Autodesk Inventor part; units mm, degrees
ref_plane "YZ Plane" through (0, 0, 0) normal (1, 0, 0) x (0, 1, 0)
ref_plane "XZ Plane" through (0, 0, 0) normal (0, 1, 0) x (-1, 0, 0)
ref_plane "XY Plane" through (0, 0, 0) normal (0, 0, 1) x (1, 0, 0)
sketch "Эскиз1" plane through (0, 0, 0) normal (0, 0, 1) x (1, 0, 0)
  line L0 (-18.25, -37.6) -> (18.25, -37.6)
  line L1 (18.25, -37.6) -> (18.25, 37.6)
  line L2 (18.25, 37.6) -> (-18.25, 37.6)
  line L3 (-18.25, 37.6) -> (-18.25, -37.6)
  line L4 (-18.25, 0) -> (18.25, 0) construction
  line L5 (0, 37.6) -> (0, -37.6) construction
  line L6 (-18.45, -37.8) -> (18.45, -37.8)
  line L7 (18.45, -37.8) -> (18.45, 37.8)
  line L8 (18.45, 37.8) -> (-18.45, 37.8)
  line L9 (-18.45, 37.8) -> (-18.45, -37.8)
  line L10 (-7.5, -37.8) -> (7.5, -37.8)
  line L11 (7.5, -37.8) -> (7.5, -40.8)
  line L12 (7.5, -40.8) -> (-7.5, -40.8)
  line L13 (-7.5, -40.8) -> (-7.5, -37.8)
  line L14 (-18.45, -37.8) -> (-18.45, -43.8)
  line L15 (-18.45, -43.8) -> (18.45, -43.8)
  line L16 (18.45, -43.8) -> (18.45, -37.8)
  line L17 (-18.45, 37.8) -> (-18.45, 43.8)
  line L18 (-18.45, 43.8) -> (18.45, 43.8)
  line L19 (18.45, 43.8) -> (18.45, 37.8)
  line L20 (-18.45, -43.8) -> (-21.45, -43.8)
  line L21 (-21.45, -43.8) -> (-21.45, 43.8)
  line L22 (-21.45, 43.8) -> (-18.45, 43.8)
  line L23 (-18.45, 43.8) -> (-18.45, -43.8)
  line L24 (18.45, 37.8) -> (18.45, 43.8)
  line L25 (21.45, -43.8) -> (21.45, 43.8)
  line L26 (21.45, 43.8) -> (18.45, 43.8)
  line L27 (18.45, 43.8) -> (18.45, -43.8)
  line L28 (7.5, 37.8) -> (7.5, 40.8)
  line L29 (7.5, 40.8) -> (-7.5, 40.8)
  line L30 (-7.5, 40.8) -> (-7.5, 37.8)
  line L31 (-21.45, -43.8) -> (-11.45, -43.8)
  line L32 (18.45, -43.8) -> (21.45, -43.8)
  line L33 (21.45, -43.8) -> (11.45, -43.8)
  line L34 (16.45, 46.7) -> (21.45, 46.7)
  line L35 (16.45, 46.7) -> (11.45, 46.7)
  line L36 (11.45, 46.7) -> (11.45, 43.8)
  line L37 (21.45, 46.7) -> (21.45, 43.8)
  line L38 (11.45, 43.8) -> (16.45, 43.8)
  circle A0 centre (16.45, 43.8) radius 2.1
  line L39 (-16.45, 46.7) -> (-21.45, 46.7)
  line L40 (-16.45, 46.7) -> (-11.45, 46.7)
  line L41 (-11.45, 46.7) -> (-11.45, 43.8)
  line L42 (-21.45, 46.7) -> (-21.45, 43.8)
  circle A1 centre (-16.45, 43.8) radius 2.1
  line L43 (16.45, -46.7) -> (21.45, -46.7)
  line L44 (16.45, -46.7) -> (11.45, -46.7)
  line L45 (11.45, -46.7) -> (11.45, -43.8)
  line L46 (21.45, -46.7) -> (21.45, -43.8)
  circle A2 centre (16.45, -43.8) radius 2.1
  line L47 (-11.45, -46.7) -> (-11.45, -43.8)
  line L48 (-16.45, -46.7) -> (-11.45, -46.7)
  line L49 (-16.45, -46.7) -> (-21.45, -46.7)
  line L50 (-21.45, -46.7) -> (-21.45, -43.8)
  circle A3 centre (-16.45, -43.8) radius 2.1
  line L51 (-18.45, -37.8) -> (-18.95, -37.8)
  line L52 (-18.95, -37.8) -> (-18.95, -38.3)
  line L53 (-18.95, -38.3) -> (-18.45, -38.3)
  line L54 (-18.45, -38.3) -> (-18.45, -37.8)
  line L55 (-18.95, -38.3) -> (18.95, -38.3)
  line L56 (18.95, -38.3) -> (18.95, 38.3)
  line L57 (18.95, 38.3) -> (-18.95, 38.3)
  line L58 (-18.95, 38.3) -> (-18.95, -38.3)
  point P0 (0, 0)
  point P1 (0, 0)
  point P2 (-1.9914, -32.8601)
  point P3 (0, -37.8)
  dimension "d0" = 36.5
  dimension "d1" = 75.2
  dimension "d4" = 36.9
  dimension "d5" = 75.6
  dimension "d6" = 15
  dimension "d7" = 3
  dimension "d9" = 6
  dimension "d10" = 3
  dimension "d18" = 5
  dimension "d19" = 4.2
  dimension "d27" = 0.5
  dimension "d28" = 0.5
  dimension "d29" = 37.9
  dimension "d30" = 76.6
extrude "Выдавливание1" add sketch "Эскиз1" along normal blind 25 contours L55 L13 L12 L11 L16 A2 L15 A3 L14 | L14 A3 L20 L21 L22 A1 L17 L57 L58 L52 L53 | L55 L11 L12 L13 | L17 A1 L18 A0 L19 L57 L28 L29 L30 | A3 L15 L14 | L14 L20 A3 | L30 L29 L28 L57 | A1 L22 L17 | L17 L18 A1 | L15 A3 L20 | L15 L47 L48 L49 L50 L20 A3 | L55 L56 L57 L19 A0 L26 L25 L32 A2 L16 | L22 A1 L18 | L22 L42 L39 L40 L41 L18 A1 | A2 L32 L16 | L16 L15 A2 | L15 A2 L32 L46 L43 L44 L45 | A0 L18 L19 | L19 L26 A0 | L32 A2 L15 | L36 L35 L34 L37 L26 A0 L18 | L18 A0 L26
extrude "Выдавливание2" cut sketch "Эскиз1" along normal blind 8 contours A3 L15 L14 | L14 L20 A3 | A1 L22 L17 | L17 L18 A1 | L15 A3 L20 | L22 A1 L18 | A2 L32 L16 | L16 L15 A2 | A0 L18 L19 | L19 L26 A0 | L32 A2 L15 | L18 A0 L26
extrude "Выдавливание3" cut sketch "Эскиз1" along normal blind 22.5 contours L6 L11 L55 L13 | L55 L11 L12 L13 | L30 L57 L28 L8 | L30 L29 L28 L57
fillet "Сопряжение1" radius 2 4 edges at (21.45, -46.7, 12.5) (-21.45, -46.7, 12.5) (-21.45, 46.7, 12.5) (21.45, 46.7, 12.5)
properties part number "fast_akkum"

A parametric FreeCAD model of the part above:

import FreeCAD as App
import Part
import Sketcher
Q = App.Units.Quantity


def edges_at(feature, points):
    """Names of the edges that pass closest to the given points."""
    edges = feature.Shape.Edges
    near = lambda p: min(range(len(edges)), key=lambda i: edges[i].distToShape(Part.Vertex(*p))[0])
    return sorted({f"Edge{near(p) + 1}" for p in points})


def add_polygon(sketch, points):
    """Adds a closed chain of lines whose ends are joined by coincident constraints."""
    first, n = sketch.GeometryCount, len(points)
    for a, b in zip(points, points[1:] + points[:1]):
        sketch.addGeometry(Part.LineSegment(App.Vector(*a, 0), App.Vector(*b, 0)), False)
    for i in range(n):
        sketch.addConstraint(Sketcher.Constraint("Coincident", first + i, 2, first + (i + 1) % n, 1))

doc = App.newDocument("Part")
body = doc.addObject("PartDesign::Body", "Body")

# Sketch on XY plane
sketch1 = body.newObject("Sketcher::SketchObject", "Sketch")
sketch1.AttachmentSupport = (doc.getObject("XY_Plane"), [""])
sketch1.MapMode = "FlatFace"
add_polygon(sketch1, [(-11.4, -43.8), (11.4, -43.8), (11.4, -46.7), (21.4, -46.7), (21.4, 46.7), (11.4, 46.7), (11.4, 43.8), (-11.4, 43.8), (-11.4, 46.7), (-21.4, 46.7), (-21.4, -46.7), (-11.4, -46.7)])  # lines 0-11
add_polygon(sketch1, [(-18.9, -38.3), (-18.9, 38.3), (18.9, 38.3), (18.9, -38.3)])  # lines 12-15
sketch1.addConstraint(Sketcher.Constraint("Horizontal", 0))
sketch1.addConstraint(Sketcher.Constraint("Vertical", 1))
sketch1.addConstraint(Sketcher.Constraint("Horizontal", 2))
sketch1.addConstraint(Sketcher.Constraint("Vertical", 3))
sketch1.addConstraint(Sketcher.Constraint("Horizontal", 4))
sketch1.addConstraint(Sketcher.Constraint("Vertical", 5))
sketch1.addConstraint(Sketcher.Constraint("Horizontal", 6))
sketch1.addConstraint(Sketcher.Constraint("Vertical", 7))
sketch1.addConstraint(Sketcher.Constraint("Horizontal", 8))
sketch1.addConstraint(Sketcher.Constraint("Vertical", 9))
sketch1.addConstraint(Sketcher.Constraint("Horizontal", 10))
sketch1.addConstraint(Sketcher.Constraint("Vertical", 11))
sketch1.addConstraint(Sketcher.Constraint("Vertical", 12))
sketch1.addConstraint(Sketcher.Constraint("Horizontal", 13))
sketch1.addConstraint(Sketcher.Constraint("Vertical", 14))
sketch1.addConstraint(Sketcher.Constraint("Horizontal", 15))
sketch1.addConstraint(Sketcher.Constraint("Symmetric", 0, 2, 6, 2, -1, 1))
sketch1.addConstraint(Sketcher.Constraint("Symmetric", 2, 2, 8, 2, -1, 1))
sketch1.addConstraint(Sketcher.Constraint("Symmetric", 4, 2, 10, 2, -1, 1))
sketch1.addConstraint(Sketcher.Constraint("Symmetric", 12, 2, 14, 2, -1, 1))
sketch1.addConstraint(Sketcher.Constraint("Symmetric", 4, 2, 7, 2, -2))
sketch1.addConstraint(Sketcher.Constraint("DistanceX", 13, 1, 13, 2, Q("37.9 mm")))
sketch1.addConstraint(Sketcher.Constraint("DistanceY", 12, 1, 12, 2, Q("76.6 mm")))
sketch1.addConstraint(Sketcher.Constraint("DistanceX", 2, 1, 2, 2, Q("10 mm")))
sketch1.addConstraint(Sketcher.Constraint("DistanceX", 0, 1, 0, 2, Q("22.9 mm")))
sketch1.addConstraint(Sketcher.Constraint("DistanceY", 1, 2, 1, 1, Q("2.9 mm")))
sketch1.addConstraint(Sketcher.Constraint("DistanceY", 3, 1, 3, 2, Q("93.4 mm")))
pad1 = body.newObject("PartDesign::Pad", "Pad")
pad1.Profile = sketch1
pad1.Length = 25

# Sketch on XY plane
sketch2 = body.newObject("Sketcher::SketchObject", "Sketch001")
sketch2.AttachmentSupport = (doc.getObject("XY_Plane"), [""])
sketch2.MapMode = "FlatFace"
sketch2.addGeometry(Part.Circle(App.Vector(-16.4, -43.8, 0), App.Vector(0, 0, 1), 2.1), False)
sketch2.addGeometry(Part.Circle(App.Vector(-16.4, 43.8, 0), App.Vector(0, 0, 1), 2.1), False)
sketch2.addGeometry(Part.Circle(App.Vector(16.4, -43.8, 0), App.Vector(0, 0, 1), 2.1), False)
sketch2.addGeometry(Part.Circle(App.Vector(16.4, 43.8, 0), App.Vector(0, 0, 1), 2.1), False)
sketch2.addConstraint(Sketcher.Constraint("Equal", 0, 1))
sketch2.addConstraint(Sketcher.Constraint("Equal", 1, 2))
sketch2.addConstraint(Sketcher.Constraint("Equal", 2, 3))
sketch2.addConstraint(Sketcher.Constraint("Symmetric", 1, 3, 2, 3, -1, 1))
sketch2.addConstraint(Sketcher.Constraint("Symmetric", 0, 3, 3, 3, -1, 1))
sketch2.addConstraint(Sketcher.Constraint("Symmetric", 0, 3, 2, 3, -2))
sketch2.addConstraint(Sketcher.Constraint("Diameter", 0, Q("4.2 mm")))
sketch2.addConstraint(Sketcher.Constraint("DistanceY", 0, 3, -1, 1, Q("43.8 mm")))
sketch2.addConstraint(Sketcher.Constraint("DistanceX", 0, 3, 2, 3, Q("32.9 mm")))
pocket1 = body.newObject("PartDesign::Pocket", "Pocket")
pocket1.Profile = sketch2
pocket1.Length = 8
pocket1.Reversed = True

# Sketch on XY plane
sketch3 = body.newObject("Sketcher::SketchObject", "Sketch002")
sketch3.AttachmentSupport = (doc.getObject("XY_Plane"), [""])
sketch3.MapMode = "FlatFace"
add_polygon(sketch3, [(7.5, -37.8), (-7.5, -37.8), (-7.5, -40.8), (7.5, -40.8)])  # lines 0-3
add_polygon(sketch3, [(-7.5, 37.8), (7.5, 37.8), (7.5, 40.8), (-7.5, 40.8)])  # lines 4-7
sketch3.addConstraint(Sketcher.Constraint("Horizontal", 0))
sketch3.addConstraint(Sketcher.Constraint("Vertical", 1))
sketch3.addConstraint(Sketcher.Constraint("Horizontal", 2))
sketch3.addConstraint(Sketcher.Constraint("Vertical", 3))
sketch3.addConstraint(Sketcher.Constraint("Horizontal", 4))
sketch3.addConstraint(Sketcher.Constraint("Vertical", 5))
sketch3.addConstraint(Sketcher.Constraint("Horizontal", 6))
sketch3.addConstraint(Sketcher.Constraint("Vertical", 7))
sketch3.addConstraint(Sketcher.Constraint("Symmetric", 0, 2, 4, 2, -1, 1))
sketch3.addConstraint(Sketcher.Constraint("Symmetric", 2, 2, 6, 2, -1, 1))
sketch3.addConstraint(Sketcher.Constraint("Vertical", 3, 2, 4, 2))
sketch3.addConstraint(Sketcher.Constraint("DistanceX", 0, 2, 0, 1, Q("15 mm")))
sketch3.addConstraint(Sketcher.Constraint("DistanceY", 1, 2, 1, 1, Q("3 mm")))
sketch3.addConstraint(Sketcher.Constraint("DistanceY", 3, 2, 4, 2, Q("75.6 mm")))
pocket2 = body.newObject("PartDesign::Pocket", "Pocket001")
pocket2.Profile = sketch3
pocket2.Length = 22.5
pocket2.Reversed = True
doc.recompute()

fillet = body.newObject("PartDesign::Fillet", "Fillet")
fillet.Base = (pocket2, edges_at(pocket2, [
    (21.45, -46.7, 12.5),
    (-21.45, -46.7, 12.5),
    (-21.45, 46.7, 12.5),
    (21.45, 46.7, 12.5),
]))
fillet.Radius = 2

doc.recompute()
